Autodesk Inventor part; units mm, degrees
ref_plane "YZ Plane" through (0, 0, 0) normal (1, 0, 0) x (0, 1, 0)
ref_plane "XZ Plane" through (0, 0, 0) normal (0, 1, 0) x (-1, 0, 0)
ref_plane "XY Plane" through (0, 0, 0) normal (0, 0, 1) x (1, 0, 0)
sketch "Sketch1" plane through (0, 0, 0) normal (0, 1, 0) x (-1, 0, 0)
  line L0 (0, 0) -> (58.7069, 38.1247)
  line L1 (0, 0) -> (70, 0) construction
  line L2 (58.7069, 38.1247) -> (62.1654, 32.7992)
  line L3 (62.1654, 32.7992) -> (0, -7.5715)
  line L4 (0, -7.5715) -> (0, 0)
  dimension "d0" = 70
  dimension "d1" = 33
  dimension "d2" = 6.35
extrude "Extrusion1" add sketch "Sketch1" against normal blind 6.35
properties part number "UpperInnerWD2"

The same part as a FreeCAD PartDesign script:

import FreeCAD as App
import Part
import Sketcher
Q = App.Units.Quantity

doc = App.newDocument("Part")
body = doc.addObject("PartDesign::Body", "Body")

sketch1 = body.newObject("Sketcher::SketchObject", "Sketch")
sketch1.AttachmentSupport = (doc.getObject("XZ_Plane"), [""])
sketch1.MapMode = "FlatFace"
sketch1.addGeometry(Part.LineSegment(App.Vector(-58.7069, 38.1247, 0), App.Vector(0, 0, 0)), False)
sketch1.addGeometry(Part.LineSegment(App.Vector(0, 0, 0), App.Vector(0, -7.5715, 0)), False)
sketch1.addGeometry(Part.LineSegment(App.Vector(0, -7.5715, 0), App.Vector(-62.1654, 32.7992, 0)), False)
sketch1.addGeometry(Part.LineSegment(App.Vector(-62.1654, 32.7992, 0), App.Vector(-58.7069, 38.1247, 0)), False)
sketch1.addConstraint(Sketcher.Constraint("Coincident", 0, 2, 1, 1))
sketch1.addConstraint(Sketcher.Constraint("Coincident", 1, 2, 2, 1))
sketch1.addConstraint(Sketcher.Constraint("Coincident", 2, 2, 3, 1))
sketch1.addConstraint(Sketcher.Constraint("Coincident", 3, 2, 0, 1))
sketch1.addConstraint(Sketcher.Constraint("Vertical", 1))
sketch1.addConstraint(Sketcher.Constraint("Coincident", 0, 2, -1, 1))
sketch1.addConstraint(Sketcher.Constraint("Parallel", 0, 2))
sketch1.addConstraint(Sketcher.Constraint("Perpendicular", 2, 3))
sketch1.addConstraint(Sketcher.Constraint("Angle", 0, Q("-33 deg")))
sketch1.addConstraint(Sketcher.Constraint("Distance", 3, Q("0.25 in")))
sketch1.addConstraint(Sketcher.Constraint("Distance", 0, Q("2.7559 in")))
pad1 = body.newObject("PartDesign::Pad", "Pad")
pad1.Profile = sketch1
pad1.Length = Q("0.25 in")

doc.recompute()
